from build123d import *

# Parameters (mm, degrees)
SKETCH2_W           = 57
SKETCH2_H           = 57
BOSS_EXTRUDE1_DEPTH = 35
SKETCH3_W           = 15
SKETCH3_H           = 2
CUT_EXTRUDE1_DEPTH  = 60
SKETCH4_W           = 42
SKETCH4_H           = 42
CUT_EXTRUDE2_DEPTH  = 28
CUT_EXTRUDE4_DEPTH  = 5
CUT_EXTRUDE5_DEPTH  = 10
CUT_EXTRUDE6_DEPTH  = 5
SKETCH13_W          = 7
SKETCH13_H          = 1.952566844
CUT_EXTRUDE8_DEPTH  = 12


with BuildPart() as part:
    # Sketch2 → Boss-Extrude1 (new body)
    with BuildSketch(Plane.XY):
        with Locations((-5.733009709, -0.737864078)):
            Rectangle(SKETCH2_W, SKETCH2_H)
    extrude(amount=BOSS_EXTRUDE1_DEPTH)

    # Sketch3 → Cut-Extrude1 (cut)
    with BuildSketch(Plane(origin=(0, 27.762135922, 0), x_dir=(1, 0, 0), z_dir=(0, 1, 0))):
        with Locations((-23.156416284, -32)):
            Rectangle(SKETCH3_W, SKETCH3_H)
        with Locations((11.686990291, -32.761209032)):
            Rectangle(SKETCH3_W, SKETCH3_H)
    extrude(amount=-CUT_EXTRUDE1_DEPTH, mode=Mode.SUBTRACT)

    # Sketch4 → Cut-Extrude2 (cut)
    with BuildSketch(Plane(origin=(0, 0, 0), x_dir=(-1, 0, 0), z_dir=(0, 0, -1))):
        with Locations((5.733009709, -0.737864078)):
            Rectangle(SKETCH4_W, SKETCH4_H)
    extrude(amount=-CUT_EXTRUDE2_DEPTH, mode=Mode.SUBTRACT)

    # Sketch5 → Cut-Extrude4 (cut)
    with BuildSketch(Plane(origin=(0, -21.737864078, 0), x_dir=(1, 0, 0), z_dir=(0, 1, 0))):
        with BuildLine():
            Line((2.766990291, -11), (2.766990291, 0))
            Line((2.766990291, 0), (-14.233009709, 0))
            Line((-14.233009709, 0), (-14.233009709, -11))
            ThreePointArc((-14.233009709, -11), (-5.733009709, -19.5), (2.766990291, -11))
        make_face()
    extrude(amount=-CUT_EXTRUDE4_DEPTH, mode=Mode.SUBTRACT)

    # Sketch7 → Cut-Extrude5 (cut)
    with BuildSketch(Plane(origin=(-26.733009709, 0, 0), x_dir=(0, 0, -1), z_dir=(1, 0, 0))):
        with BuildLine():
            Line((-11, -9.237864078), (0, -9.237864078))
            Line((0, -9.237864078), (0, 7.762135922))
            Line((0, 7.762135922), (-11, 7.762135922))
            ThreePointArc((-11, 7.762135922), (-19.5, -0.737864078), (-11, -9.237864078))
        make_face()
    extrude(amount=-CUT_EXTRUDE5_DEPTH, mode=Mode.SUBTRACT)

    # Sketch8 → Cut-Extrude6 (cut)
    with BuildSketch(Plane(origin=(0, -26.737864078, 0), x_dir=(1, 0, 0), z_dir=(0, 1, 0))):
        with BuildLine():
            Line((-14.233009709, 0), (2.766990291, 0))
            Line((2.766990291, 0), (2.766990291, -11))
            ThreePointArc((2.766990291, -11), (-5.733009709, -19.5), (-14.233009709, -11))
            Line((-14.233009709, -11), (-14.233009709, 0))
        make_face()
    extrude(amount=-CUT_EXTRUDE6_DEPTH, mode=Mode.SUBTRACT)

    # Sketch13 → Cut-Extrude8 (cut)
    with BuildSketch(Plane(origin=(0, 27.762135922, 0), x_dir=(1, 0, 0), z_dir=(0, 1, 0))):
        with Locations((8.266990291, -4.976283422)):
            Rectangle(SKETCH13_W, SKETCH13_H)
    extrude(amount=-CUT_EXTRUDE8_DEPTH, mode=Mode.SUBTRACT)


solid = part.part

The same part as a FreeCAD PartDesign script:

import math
import FreeCAD as App
import Part
import Sketcher


def add_polygon(sketch, points):
    """Adds a closed chain of lines whose ends are joined by coincident constraints."""
    first, n = sketch.GeometryCount, len(points)
    for a, b in zip(points, points[1:] + points[:1]):
        sketch.addGeometry(Part.LineSegment(App.Vector(*a, 0), App.Vector(*b, 0)), False)
    for i in range(n):
        sketch.addConstraint(Sketcher.Constraint("Coincident", first + i, 2, first + (i + 1) % n, 1))

doc = App.newDocument("Part")
body = doc.addObject("PartDesign::Body", "Body")

# Sketch on XY plane
sketch1 = body.newObject("Sketcher::SketchObject", "Sketch")
sketch1.AttachmentSupport = (doc.getObject("XY_Plane"), [""])
sketch1.MapMode = "FlatFace"
add_polygon(sketch1, [(-34, 28), (-34, -29), (23, -29), (23, 28)])  # lines 0-3
sketch1.addConstraint([
    Sketcher.Constraint("Vertical", 0),
    Sketcher.Constraint("Horizontal", 1),
    Sketcher.Constraint("Vertical", 2),
    Sketcher.Constraint("Horizontal", 3),
    Sketcher.Constraint("Equal", 3, 0),
    Sketcher.Constraint("DistanceX", 1, 1, 1, 2, 57.0),
    Sketcher.Constraint("DistanceX", 0, 2, -1, 1, 34.23301),
    Sketcher.Constraint("DistanceY", 0, 2, -1, 1, 29.237864),
])
pad1 = body.newObject("PartDesign::Pad", "Pad")
pad1.Profile = sketch1
pad1.Length = 35

# Sketch on XZ plane
sketch2 = body.newObject("Sketcher::SketchObject", "Sketch001")
sketch2.AttachmentSupport = (doc.getObject("XZ_Plane"), [""])
sketch2.MapMode = "FlatFace"
sketch2.AttachmentOffset = App.Placement(App.Vector(0, 0, -27.762136), App.Rotation())
add_polygon(sketch2, [(-30.7, 31), (-30.7, 33), (-15.7, 33), (-15.7, 31)])  # lines 0-3
add_polygon(sketch2, [(4.2, 31.8), (4.2, 33.8), (19.2, 33.8), (19.2, 31.8)])  # lines 4-7
sketch2.addConstraint([
    Sketcher.Constraint("Vertical", 0),
    Sketcher.Constraint("Horizontal", 1),
    Sketcher.Constraint("Vertical", 2),
    Sketcher.Constraint("Horizontal", 3),
    Sketcher.Constraint("Vertical", 4),
    Sketcher.Constraint("Horizontal", 5),
    Sketcher.Constraint("Vertical", 6),
    Sketcher.Constraint("Horizontal", 7),
    Sketcher.Constraint("Equal", 3, 5),
    Sketcher.Constraint("Equal", 2, 4),
    Sketcher.Constraint("DistanceX", 1, 1, 1, 2, 15.0),
    Sketcher.Constraint("DistanceY", 0, 1, 0, 2, 2.0),
    Sketcher.Constraint("DistanceY", -1, 1, 0, 2, 33.0),
    Sketcher.Constraint("DistanceX", -1, 1, 4, 2, 4.18699),
    Sketcher.Constraint("DistanceY", -1, 1, 4, 2, 33.761209),
    Sketcher.Constraint("DistanceX", 0, 2, -1, 1, 30.656416),
])
pocket1 = body.newObject("PartDesign::Pocket", "Pocket")
pocket1.Profile = sketch2
pocket1.Length = 60
pocket1.Reversed = True

# Sketch on XY plane
sketch3 = body.newObject("Sketcher::SketchObject", "Sketch002")
sketch3.AttachmentSupport = (doc.getObject("XY_Plane"), [""])
sketch3.MapMode = "FlatFace"
add_polygon(sketch3, [(15, 20), (15, -22), (-27, -22), (-27, 20)])  # lines 0-3
sketch3.addConstraint([
    Sketcher.Constraint("Vertical", 0),
    Sketcher.Constraint("Horizontal", 1),
    Sketcher.Constraint("Vertical", 2),
    Sketcher.Constraint("Horizontal", 3),
    Sketcher.Constraint("Equal", 3, 0),
    Sketcher.Constraint("DistanceX", 1, 2, 1, 1, 42.0),
    Sketcher.Constraint("DistanceX", -1, 1, 0, 2, 15.26699),
    Sketcher.Constraint("DistanceY", 0, 2, -1, 1, 21.737864),
])
pocket2 = body.newObject("PartDesign::Pocket", "Pocket001")
pocket2.Profile = sketch3
pocket2.Length = 28
pocket2.Reversed = True

# Sketch on XZ plane
sketch4 = body.newObject("Sketcher::SketchObject", "Sketch003")
sketch4.AttachmentSupport = (doc.getObject("XZ_Plane"), [""])
sketch4.MapMode = "FlatFace"
sketch4.AttachmentOffset = App.Placement(App.Vector(0, 0, 21.737864), App.Rotation())
sketch4.addGeometry([
    Part.LineSegment(App.Vector(3, 11, 0), App.Vector(3, 0, 0)),
    Part.LineSegment(App.Vector(3, 0, 0), App.Vector(-14, 0, 0)),
    Part.LineSegment(App.Vector(-14, 0, 0), App.Vector(-14, 11, 0)),
    Part.ArcOfCircle(Part.Circle(App.Vector(-6, 11, 0), App.Vector(0, 0, 1), 8), math.radians(0), math.radians(180)),
], False)
sketch4.addConstraint([
    Sketcher.Constraint("Coincident", 0, 2, 1, 1),
    Sketcher.Constraint("Coincident", 1, 2, 2, 1),
    Sketcher.Constraint("Tangent", 2, 2, 3, 2),
    Sketcher.Constraint("Tangent", 3, 1, 0, 1),
    Sketcher.Constraint("Vertical", 0),
    Sketcher.Constraint("Horizontal", 1),
    Sketcher.Constraint("Vertical", 2),
    Sketcher.Constraint("PointOnObject", 0, 2, -1),
    Sketcher.Constraint("Radius", 3, 8.5),
    Sketcher.Constraint("DistanceY", 0, 2, 0, 1, 11.0),
    Sketcher.Constraint("DistanceX", 3, 3, -1, 1, 5.73301),
])
pocket3 = body.newObject("PartDesign::Pocket", "Pocket002")
pocket3.Profile = sketch4
pocket3.Length = 5
pocket3.Reversed = True

# Sketch on YZ plane
sketch5 = body.newObject("Sketcher::SketchObject", "Sketch004")
sketch5.AttachmentSupport = (doc.getObject("YZ_Plane"), [""])
sketch5.MapMode = "FlatFace"
sketch5.AttachmentOffset = App.Placement(App.Vector(0, 0, -26.73301), App.Rotation())
sketch5.addGeometry([
    Part.LineSegment(App.Vector(-9, 11, 0), App.Vector(-9, 0, 0)),
    Part.LineSegment(App.Vector(-9, 0, 0), App.Vector(8, 0, 0)),
    Part.LineSegment(App.Vector(8, 0, 0), App.Vector(8, 11, 0)),
    Part.ArcOfCircle(Part.Circle(App.Vector(-1, 11, 0), App.Vector(0, 0, 1), 8), math.radians(0), math.radians(180)),
], False)
sketch5.addConstraint([
    Sketcher.Constraint("Coincident", 0, 2, 1, 1),
    Sketcher.Constraint("Coincident", 1, 2, 2, 1),
    Sketcher.Constraint("Tangent", 2, 2, 3, 1),
    Sketcher.Constraint("Tangent", 3, 2, 0, 1),
    Sketcher.Constraint("Vertical", 0),
    Sketcher.Constraint("Horizontal", 1),
    Sketcher.Constraint("Vertical", 2),
    Sketcher.Constraint("PointOnObject", 0, 2, -1),
    Sketcher.Constraint("Radius", 3, 8.5),
    Sketcher.Constraint("DistanceY", 0, 2, 0, 1, 11.0),
    Sketcher.Constraint("DistanceX", 3, 3, -1, 1, 0.737864),
])
pocket4 = body.newObject("PartDesign::Pocket", "Pocket003")
pocket4.Profile = sketch5
pocket4.Length = 10

# Sketch on XZ plane
sketch6 = body.newObject("Sketcher::SketchObject", "Sketch005")
sketch6.AttachmentSupport = (doc.getObject("XZ_Plane"), [""])
sketch6.MapMode = "FlatFace"
sketch6.AttachmentOffset = App.Placement(App.Vector(0, 0, 26.737864), App.Rotation())
sketch6.addGeometry([
    Part.LineSegment(App.Vector(3, 0, 0), App.Vector(-14, 0, 0)),
    Part.LineSegment(App.Vector(-14, 0, 0), App.Vector(-14, 11, 0)),
    Part.ArcOfCircle(Part.Circle(App.Vector(-6, 11, 0), App.Vector(0, 0, 1), 8), math.radians(0), math.radians(180)),
    Part.LineSegment(App.Vector(3, 11, 0), App.Vector(3, 0, 0)),
], False)
sketch6.addConstraint([
    Sketcher.Constraint("Coincident", 0, 2, 1, 1),
    Sketcher.Constraint("Tangent", 1, 2, 2, 2),
    Sketcher.Constraint("Tangent", 2, 1, 3, 1),
    Sketcher.Constraint("Coincident", 3, 2, 0, 1),
    Sketcher.Constraint("Horizontal", 0),
    Sketcher.Constraint("Vertical", 1),
    Sketcher.Constraint("Vertical", 3),
    Sketcher.Constraint("PointOnObject", 0, 2, -1),
    Sketcher.Constraint("Radius", 2, 8.5),
    Sketcher.Constraint("DistanceY", 1, 1, 1, 2, 11.0),
    Sketcher.Constraint("DistanceX", 2, 3, -1, 1, 5.73301),
])
pocket5 = body.newObject("PartDesign::Pocket", "Pocket004")
pocket5.Profile = sketch6
pocket5.Length = 5
pocket5.Reversed = True

# Sketch on XZ plane
sketch7 = body.newObject("Sketcher::SketchObject", "Sketch006")
sketch7.AttachmentSupport = (doc.getObject("XZ_Plane"), [""])
sketch7.MapMode = "FlatFace"
sketch7.AttachmentOffset = App.Placement(App.Vector(0, 0, -27.762136), App.Rotation())
add_polygon(sketch7, [(4.8, 4), (4.8, 6), (11.8, 6), (11.8, 4)])  # lines 0-3
sketch7.addConstraint([
    Sketcher.Constraint("Vertical", 0),
    Sketcher.Constraint("Horizontal", 1),
    Sketcher.Constraint("Vertical", 2),
    Sketcher.Constraint("Horizontal", 3),
    Sketcher.Constraint("DistanceX", 1, 1, 1, 2, 7.0),
    Sketcher.Constraint("DistanceY", -1, 1, 2, 2, 4.0),
    Sketcher.Constraint("DistanceY", 0, 1, 0, 2, 1.952567),
    Sketcher.Constraint("DistanceX", -1, 1, 0, 2, 4.76699),
])
pocket6 = body.newObject("PartDesign::Pocket", "Pocket005")
pocket6.Profile = sketch7
pocket6.Length = 12
pocket6.Reversed = True

doc.recompute()
